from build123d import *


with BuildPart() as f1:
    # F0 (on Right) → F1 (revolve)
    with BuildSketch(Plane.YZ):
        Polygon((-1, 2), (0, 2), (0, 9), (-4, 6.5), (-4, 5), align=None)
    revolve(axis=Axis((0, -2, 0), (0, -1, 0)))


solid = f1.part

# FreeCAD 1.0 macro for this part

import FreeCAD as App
import Part
import Sketcher

V = App.Vector
Q = App.Units.Quantity

doc = App.newDocument("Part")
body = doc.addObject("PartDesign::Body", "Body")

sketch1 = body.newObject("Sketcher::SketchObject", "Sketch")
sketch1.AttachmentSupport = (doc.getObject("YZ_Plane"), [""])
sketch1.MapMode = "FlatFace"
sketch1.addGeometry(Part.LineSegment(V(-1, 2, 0), V(0, 2, 0)), False)
sketch1.addGeometry(Part.LineSegment(V(0, 2, 0), V(0, 9, 0)), False)
sketch1.addGeometry(Part.LineSegment(V(0, 9, 0), V(-4, 6.5, 0)), False)
sketch1.addGeometry(Part.LineSegment(V(-4, 6.5, 0), V(-4, 5, 0)), False)
sketch1.addGeometry(Part.LineSegment(V(-4, 5, 0), V(-1, 2, 0)), False)
sketch1.addConstraint(Sketcher.Constraint("Coincident", 0, 2, 1, 1))
sketch1.addConstraint(Sketcher.Constraint("Coincident", 1, 2, 2, 1))
sketch1.addConstraint(Sketcher.Constraint("Coincident", 2, 2, 3, 1))
sketch1.addConstraint(Sketcher.Constraint("Coincident", 3, 2, 4, 1))
sketch1.addConstraint(Sketcher.Constraint("Coincident", 4, 2, 0, 1))
sketch1.addConstraint(Sketcher.Constraint("Horizontal", 0))
sketch1.addConstraint(Sketcher.Constraint("Vertical", 1))
sketch1.addConstraint(Sketcher.Constraint("Vertical", 3))
sketch1.addConstraint(Sketcher.Constraint("PointOnObject", 0, 2, -2))
sketch1.addConstraint(Sketcher.Constraint("DistanceX", 0, 1, 0, 2, Q("1 mm")))
sketch1.addConstraint(Sketcher.Constraint("DistanceY", 1, 1, 1, 2, Q("7 mm")))
sketch1.addConstraint(Sketcher.Constraint("Angle", 4, Q("-45 deg")))
sketch1.addConstraint(Sketcher.Constraint("DistanceY", 3, 2, 3, 1, Q("1.5 mm")))
sketch1.addConstraint(Sketcher.Constraint("DistanceY", -1, 1, 0, 2, Q("2 mm")))
sketch1.addConstraint(Sketcher.Constraint("DistanceX", 2, 2, -1, 1, Q("4 mm")))
revolution = body.newObject("PartDesign::Revolution", "Revolution")
revolution.Profile = sketch1
revolution.ReferenceAxis = (sketch1, ["H_Axis"])
revolution.Angle = 360

doc.recompute()
